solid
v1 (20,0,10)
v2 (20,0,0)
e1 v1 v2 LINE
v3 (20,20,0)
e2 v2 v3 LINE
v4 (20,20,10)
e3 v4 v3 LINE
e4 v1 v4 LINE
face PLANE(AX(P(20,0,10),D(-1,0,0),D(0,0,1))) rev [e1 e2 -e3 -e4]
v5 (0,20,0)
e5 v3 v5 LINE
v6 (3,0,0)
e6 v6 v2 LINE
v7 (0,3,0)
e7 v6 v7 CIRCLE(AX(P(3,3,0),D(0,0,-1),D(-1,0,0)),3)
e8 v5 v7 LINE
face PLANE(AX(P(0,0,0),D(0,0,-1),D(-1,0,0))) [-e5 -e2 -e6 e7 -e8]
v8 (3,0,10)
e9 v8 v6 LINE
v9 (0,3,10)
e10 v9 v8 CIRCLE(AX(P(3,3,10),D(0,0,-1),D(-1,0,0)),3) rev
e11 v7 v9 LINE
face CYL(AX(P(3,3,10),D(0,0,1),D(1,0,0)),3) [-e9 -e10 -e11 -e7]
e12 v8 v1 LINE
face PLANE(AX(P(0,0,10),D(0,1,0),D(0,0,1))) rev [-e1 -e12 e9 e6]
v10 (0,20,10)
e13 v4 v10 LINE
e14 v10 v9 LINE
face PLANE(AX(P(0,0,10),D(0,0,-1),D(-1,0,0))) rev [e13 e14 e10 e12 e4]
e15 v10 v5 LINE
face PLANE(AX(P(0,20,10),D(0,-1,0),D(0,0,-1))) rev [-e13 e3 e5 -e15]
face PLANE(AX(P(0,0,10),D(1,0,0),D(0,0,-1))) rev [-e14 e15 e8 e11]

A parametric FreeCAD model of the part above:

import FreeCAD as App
import Part
import Sketcher
Q = App.Units.Quantity


def edges_at(feature, points):
    """Names of the edges that pass closest to the given points."""
    edges = feature.Shape.Edges
    near = lambda p: min(range(len(edges)), key=lambda i: edges[i].distToShape(Part.Vertex(*p))[0])
    return sorted({f"Edge{near(p) + 1}" for p in points})

doc = App.newDocument("Part")
body = doc.addObject("PartDesign::Body", "Body")

sketch1 = body.newObject("Sketcher::SketchObject", "Sketch")
sketch1.AttachmentSupport = (doc.getObject("XY_Plane"), [""])
sketch1.MapMode = "FlatFace"
sketch1.addGeometry([
    Part.LineSegment(App.Vector(0, 20, 0), App.Vector(0, 0, 0)),
    Part.LineSegment(App.Vector(0, 0, 0), App.Vector(20, 0, 0)),
    Part.LineSegment(App.Vector(20, 0, 0), App.Vector(20, 20, 0)),
    Part.LineSegment(App.Vector(20, 20, 0), App.Vector(0, 20, 0)),
], False)
sketch1.addConstraint([
    Sketcher.Constraint("Coincident", 0, 2, 1, 1),
    Sketcher.Constraint("Coincident", 1, 2, 2, 1),
    Sketcher.Constraint("Coincident", 2, 2, 3, 1),
    Sketcher.Constraint("Coincident", 3, 2, 0, 1),
    Sketcher.Constraint("Vertical", 0),
    Sketcher.Constraint("Horizontal", 1),
    Sketcher.Constraint("Vertical", 2),
    Sketcher.Constraint("Horizontal", 3),
    Sketcher.Constraint("Coincident", 0, 2, -1, 1),
    Sketcher.Constraint("Equal", 3, 0),
    Sketcher.Constraint("DistanceX", 1, 1, 1, 2, Q("20 mm")),
])
pad1 = body.newObject("PartDesign::Pad", "Pad")
pad1.Profile = sketch1
pad1.Length = 10
doc.recompute()

fillet = body.newObject("PartDesign::Fillet", "Fillet")
fillet.Base = (pad1, edges_at(pad1, [(0, 0, 5)]))
fillet.Radius = 3

doc.recompute()
